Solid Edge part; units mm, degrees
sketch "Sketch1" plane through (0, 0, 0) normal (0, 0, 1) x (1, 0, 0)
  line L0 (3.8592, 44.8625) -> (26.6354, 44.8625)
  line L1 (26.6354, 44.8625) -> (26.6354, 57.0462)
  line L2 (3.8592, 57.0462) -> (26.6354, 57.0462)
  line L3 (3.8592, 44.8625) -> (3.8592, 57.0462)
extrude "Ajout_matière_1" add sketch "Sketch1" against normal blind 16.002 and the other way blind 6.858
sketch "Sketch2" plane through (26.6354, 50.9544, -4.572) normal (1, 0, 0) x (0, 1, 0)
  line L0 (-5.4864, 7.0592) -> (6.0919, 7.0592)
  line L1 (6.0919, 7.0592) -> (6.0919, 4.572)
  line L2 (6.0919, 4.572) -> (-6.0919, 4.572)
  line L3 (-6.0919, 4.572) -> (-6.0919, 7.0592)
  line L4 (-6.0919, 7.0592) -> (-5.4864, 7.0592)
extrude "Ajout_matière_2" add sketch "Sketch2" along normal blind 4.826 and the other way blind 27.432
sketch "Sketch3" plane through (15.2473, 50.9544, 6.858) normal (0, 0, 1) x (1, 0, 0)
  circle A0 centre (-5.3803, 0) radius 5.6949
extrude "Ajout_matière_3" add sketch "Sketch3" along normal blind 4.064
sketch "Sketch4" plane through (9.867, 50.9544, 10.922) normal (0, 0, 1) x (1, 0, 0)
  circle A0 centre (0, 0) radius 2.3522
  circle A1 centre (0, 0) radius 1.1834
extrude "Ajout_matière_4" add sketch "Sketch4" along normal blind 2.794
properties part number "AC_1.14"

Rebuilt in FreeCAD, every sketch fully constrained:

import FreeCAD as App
import Part
import Sketcher
Q = App.Units.Quantity

doc = App.newDocument("Part")
body = doc.addObject("PartDesign::Body", "Body")

sketch1 = doc.addObject("Sketcher::SketchObject", "Sketch")
body.addObject(sketch1)
sketch1.AttachmentSupport = (doc.XY_Plane, [""])
sketch1.MapMode = "FlatFace"
sketch1.addGeometry([
    Part.LineSegment(App.Vector(4, 57, 0), App.Vector(4, 45, 0)),
    Part.LineSegment(App.Vector(4, 45, 0), App.Vector(27, 45, 0)),
    Part.LineSegment(App.Vector(27, 45, 0), App.Vector(27, 57, 0)),
    Part.LineSegment(App.Vector(27, 57, 0), App.Vector(4, 57, 0)),
], False)
sketch1.addConstraint([
    Sketcher.Constraint("Coincident", 0, 2, 1, 1),
    Sketcher.Constraint("Coincident", 1, 2, 2, 1),
    Sketcher.Constraint("Coincident", 2, 2, 3, 1),
    Sketcher.Constraint("Coincident", 3, 2, 0, 1),
    Sketcher.Constraint("Vertical", 0),
    Sketcher.Constraint("Horizontal", 1),
    Sketcher.Constraint("Vertical", 2),
    Sketcher.Constraint("Horizontal", 3),
    Sketcher.Constraint("DistanceX", 1, 1, 1, 2, Q("0.8967 in")),
    Sketcher.Constraint("DistanceY", 0, 2, 0, 1, Q("12.1837 mm")),
    Sketcher.Constraint("DistanceX", -1, 1, 0, 2, Q("3.8592 mm")),
    Sketcher.Constraint("DistanceY", -1, 1, 0, 2, Q("44.8625 mm")),
])
pad1 = doc.addObject("PartDesign::Pad", "Pad")
body.addObject(pad1)
pad1.Profile = sketch1
pad1.Type = "TwoLengths"
pad1.Length = Q("0.63 in")
pad1.Length2 = Q("0.27 in")
pad1.Reversed = True

sketch2 = doc.addObject("Sketcher::SketchObject", "Sketch001")
body.addObject(sketch2)
sketch2.AttachmentSupport = (doc.YZ_Plane, [""])
sketch2.MapMode = "FlatFace"
sketch2.AttachmentOffset = App.Placement(App.Vector(0, 0, 26.6354), App.Rotation())
sketch2.addGeometry([
    Part.LineSegment(App.Vector(57, 2.5, 0), App.Vector(44.9, 2.5, 0)),
    Part.LineSegment(App.Vector(44.9, 2.5, 0), App.Vector(44.9, 0, 0)),
    Part.LineSegment(App.Vector(44.9, 0, 0), App.Vector(57, 0, 0)),
    Part.LineSegment(App.Vector(57, 0, 0), App.Vector(57, 2.5, 0)),
], False)
sketch2.addConstraint([
    Sketcher.Constraint("Coincident", 0, 2, 1, 1),
    Sketcher.Constraint("Coincident", 1, 2, 2, 1),
    Sketcher.Constraint("Coincident", 2, 2, 3, 1),
    Sketcher.Constraint("Coincident", 3, 2, 0, 1),
    Sketcher.Constraint("Horizontal", 0),
    Sketcher.Constraint("Vertical", 1),
    Sketcher.Constraint("Horizontal", 2),
    Sketcher.Constraint("Vertical", 3),
    Sketcher.Constraint("PointOnObject", 1, 2, -1),
    Sketcher.Constraint("DistanceX", 0, 2, 0, 1, Q("12.1838 mm")),
    Sketcher.Constraint("DistanceY", 1, 2, 1, 1, Q("2.4872 mm")),
    Sketcher.Constraint("DistanceX", -1, 1, 0, 2, Q("44.8625 mm")),
])
pad2 = doc.addObject("PartDesign::Pad", "Pad001")
body.addObject(pad2)
pad2.Profile = sketch2
pad2.Type = "TwoLengths"
pad2.Length = Q("0.19 in")
pad2.Length2 = Q("1.08 in")

sketch3 = doc.addObject("Sketcher::SketchObject", "Sketch002")
body.addObject(sketch3)
sketch3.AttachmentSupport = (doc.XY_Plane, [""])
sketch3.MapMode = "FlatFace"
sketch3.AttachmentOffset = App.Placement(App.Vector(0, 0, 0.27 * 25.4), App.Rotation())
sketch3.addGeometry(Part.Circle(App.Vector(10, 51, 0), App.Vector(0, 0, 1), 6), False)
sketch3.addConstraint([
    Sketcher.Constraint("Diameter", 0, Q("11.3898 mm")),
    Sketcher.Constraint("DistanceX", -1, 1, 0, 3, Q("9.867 mm")),
    Sketcher.Constraint("DistanceY", -1, 1, 0, 3, Q("50.9544 mm")),
])
pad3 = doc.addObject("PartDesign::Pad", "Pad002")
body.addObject(pad3)
pad3.Profile = sketch3
pad3.Length = Q("0.16 in")

sketch4 = doc.addObject("Sketcher::SketchObject", "Sketch003")
body.addObject(sketch4)
sketch4.AttachmentSupport = (doc.XY_Plane, [""])
sketch4.MapMode = "FlatFace"
sketch4.AttachmentOffset = App.Placement(App.Vector(0, 0, 0.43 * 25.4), App.Rotation())
sketch4.addGeometry([
    Part.Circle(App.Vector(9.9, 51, 0), App.Vector(0, 0, 1), 2.4),
    Part.Circle(App.Vector(9.9, 51, 0), App.Vector(0, 0, 1), 1.2),
], False)
sketch4.addConstraint([
    Sketcher.Constraint("Coincident", 1, 3, 0, 3),
    Sketcher.Constraint("Diameter", 0, Q("4.7044 mm")),
    Sketcher.Constraint("Diameter", 1, Q("2.3668 mm")),
    Sketcher.Constraint("DistanceX", -1, 1, 0, 3, Q("9.867 mm")),
    Sketcher.Constraint("DistanceY", -1, 1, 0, 3, Q("50.9544 mm")),
])
pad4 = doc.addObject("PartDesign::Pad", "Pad003")
body.addObject(pad4)
pad4.Profile = sketch4
pad4.Length = Q("0.11 in")

doc.recompute()
